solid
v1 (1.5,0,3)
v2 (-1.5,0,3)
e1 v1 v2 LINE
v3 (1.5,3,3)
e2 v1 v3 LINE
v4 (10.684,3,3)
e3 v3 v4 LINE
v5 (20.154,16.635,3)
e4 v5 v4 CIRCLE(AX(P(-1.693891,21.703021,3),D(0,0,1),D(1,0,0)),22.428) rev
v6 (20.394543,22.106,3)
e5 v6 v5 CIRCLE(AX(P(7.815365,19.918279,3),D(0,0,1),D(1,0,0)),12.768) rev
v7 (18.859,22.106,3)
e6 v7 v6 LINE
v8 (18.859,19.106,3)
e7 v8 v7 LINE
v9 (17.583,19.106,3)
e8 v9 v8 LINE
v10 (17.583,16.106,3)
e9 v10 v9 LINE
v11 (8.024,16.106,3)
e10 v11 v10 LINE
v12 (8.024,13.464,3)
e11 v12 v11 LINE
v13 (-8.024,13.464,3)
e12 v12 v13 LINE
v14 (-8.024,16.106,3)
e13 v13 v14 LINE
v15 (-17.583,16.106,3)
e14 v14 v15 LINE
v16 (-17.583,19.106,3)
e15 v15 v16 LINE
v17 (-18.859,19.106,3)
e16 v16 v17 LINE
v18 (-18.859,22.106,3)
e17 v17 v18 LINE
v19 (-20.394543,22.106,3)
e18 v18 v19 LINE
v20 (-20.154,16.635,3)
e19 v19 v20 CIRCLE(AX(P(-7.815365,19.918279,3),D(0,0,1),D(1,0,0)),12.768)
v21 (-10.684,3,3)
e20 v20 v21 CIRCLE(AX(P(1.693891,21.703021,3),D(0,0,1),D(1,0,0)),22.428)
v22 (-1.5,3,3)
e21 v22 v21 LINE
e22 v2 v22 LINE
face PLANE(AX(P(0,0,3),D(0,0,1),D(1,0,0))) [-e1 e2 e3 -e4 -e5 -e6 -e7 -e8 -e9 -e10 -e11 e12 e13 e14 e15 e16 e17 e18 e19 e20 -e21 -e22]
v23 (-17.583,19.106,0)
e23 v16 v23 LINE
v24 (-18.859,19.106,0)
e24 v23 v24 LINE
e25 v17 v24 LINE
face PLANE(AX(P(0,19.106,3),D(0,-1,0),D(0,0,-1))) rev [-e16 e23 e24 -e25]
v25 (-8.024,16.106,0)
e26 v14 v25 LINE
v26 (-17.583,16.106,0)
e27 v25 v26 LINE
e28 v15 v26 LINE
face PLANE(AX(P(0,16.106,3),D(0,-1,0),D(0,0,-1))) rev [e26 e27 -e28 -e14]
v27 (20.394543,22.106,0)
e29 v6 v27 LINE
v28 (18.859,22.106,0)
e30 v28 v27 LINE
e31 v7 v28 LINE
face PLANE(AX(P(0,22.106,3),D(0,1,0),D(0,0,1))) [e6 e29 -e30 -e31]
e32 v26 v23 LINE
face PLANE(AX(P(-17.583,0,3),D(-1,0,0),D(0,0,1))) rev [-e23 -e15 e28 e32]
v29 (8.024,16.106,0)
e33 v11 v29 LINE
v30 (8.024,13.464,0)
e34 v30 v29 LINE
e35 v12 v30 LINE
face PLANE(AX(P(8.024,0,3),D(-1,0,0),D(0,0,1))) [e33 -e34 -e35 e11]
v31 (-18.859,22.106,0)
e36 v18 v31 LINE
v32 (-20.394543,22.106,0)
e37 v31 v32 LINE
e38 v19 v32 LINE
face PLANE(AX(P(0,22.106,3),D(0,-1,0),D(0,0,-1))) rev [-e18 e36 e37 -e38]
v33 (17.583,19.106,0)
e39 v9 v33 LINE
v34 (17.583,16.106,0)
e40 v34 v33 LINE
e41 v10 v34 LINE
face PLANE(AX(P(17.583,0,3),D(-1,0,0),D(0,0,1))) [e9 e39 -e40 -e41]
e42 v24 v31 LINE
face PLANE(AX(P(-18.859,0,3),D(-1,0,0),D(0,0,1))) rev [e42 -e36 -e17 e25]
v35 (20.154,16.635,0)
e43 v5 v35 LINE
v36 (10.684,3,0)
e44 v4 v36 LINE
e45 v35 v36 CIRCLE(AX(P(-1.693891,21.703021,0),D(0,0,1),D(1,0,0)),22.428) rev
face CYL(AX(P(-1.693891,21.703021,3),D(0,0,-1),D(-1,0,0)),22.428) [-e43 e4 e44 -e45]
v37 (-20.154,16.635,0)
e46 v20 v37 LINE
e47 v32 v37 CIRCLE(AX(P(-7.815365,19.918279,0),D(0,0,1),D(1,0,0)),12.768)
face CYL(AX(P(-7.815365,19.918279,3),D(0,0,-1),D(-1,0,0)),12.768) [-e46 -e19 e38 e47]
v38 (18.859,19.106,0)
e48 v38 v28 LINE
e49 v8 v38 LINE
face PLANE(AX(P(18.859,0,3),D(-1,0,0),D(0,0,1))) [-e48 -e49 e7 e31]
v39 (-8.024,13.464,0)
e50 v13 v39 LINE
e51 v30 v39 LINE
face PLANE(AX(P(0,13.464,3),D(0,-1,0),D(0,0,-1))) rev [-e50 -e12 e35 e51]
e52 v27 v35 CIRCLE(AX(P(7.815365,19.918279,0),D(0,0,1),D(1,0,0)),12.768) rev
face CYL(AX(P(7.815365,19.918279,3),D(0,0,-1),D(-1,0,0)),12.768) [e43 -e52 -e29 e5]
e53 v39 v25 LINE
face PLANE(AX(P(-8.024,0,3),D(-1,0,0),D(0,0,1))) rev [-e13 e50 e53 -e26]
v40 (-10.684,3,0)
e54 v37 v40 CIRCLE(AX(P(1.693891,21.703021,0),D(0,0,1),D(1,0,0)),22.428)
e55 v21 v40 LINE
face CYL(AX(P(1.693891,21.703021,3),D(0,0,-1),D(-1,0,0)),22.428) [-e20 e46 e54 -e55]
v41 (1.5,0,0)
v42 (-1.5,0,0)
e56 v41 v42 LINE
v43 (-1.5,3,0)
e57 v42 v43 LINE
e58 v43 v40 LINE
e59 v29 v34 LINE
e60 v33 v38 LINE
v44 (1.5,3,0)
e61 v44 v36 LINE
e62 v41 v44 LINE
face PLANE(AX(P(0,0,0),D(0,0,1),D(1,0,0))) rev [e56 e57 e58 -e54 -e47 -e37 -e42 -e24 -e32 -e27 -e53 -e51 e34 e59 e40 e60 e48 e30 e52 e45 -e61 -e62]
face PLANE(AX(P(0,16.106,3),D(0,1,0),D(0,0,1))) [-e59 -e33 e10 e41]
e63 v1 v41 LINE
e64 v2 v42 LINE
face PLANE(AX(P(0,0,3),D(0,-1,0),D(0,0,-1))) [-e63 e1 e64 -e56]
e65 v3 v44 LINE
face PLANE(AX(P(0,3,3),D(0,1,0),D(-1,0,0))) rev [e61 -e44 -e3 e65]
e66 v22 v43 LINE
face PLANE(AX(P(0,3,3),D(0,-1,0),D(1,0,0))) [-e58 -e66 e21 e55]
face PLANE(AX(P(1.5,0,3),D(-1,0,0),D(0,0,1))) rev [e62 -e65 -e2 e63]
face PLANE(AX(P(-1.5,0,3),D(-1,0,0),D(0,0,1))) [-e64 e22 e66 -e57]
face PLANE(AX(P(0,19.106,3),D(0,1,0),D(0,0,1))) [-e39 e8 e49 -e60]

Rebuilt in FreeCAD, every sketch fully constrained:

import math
import FreeCAD as App
import Part
import Sketcher
from FreeCAD import Vector
Q = App.Units.Quantity

doc = App.newDocument("Part")
body = doc.addObject("PartDesign::Body", "Body")

# Sketch on XY plane
sketch1 = body.newObject("Sketcher::SketchObject", "Sketch")
sketch1.AttachmentSupport = (doc.getObject("XY_Plane"), [""])
sketch1.MapMode = "FlatFace"
sketch1.addGeometry(Part.LineSegment(Vector(8, 16.1, 0), Vector(8, 13.5, 0)), False)
sketch1.addGeometry(Part.LineSegment(Vector(8, 13.5, 0), Vector(-8, 13.5, 0)), False)
sketch1.addGeometry(Part.LineSegment(Vector(-8, 13.5, 0), Vector(-8, 16.1, 0)), False)
sketch1.addGeometry(Part.LineSegment(Vector(-8, 16.1, 0), Vector(-17.6, 16.1, 0)), False)
sketch1.addGeometry(Part.LineSegment(Vector(-17.6, 16.1, 0), Vector(-17.6, 19.1, 0)), False)
sketch1.addGeometry(Part.LineSegment(Vector(-17.6, 19.1, 0), Vector(-18.9, 19.1, 0)), False)
sketch1.addGeometry(Part.LineSegment(Vector(-18.9, 19.1, 0), Vector(-18.9, 22.1, 0)), False)
sketch1.addGeometry(Part.LineSegment(Vector(-18.9, 22.1, 0), Vector(-20.4, 22.1, 0)), False)
sketch1.addGeometry(Part.ArcOfCircle(Part.Circle(Vector(-7.8, 19.9, 0), Vector(0, 0, 1), 12.8), math.radians(170), math.radians(195)), False)
sketch1.addGeometry(Part.ArcOfCircle(Part.Circle(Vector(1.7, 21.7, 0), Vector(0, 0, 1), 22.4), math.radians(-167), math.radians(-123)), False)
sketch1.addGeometry(Part.LineSegment(Vector(-10.7, 3, 0), Vector(-1.5, 3, 0)), False)
sketch1.addGeometry(Part.LineSegment(Vector(-1.5, 3, 0), Vector(-1.5, 0, 0)), False)
sketch1.addGeometry(Part.LineSegment(Vector(-1.5, 0, 0), Vector(1.5, 0, 0)), False)
sketch1.addGeometry(Part.LineSegment(Vector(1.5, 0, 0), Vector(1.5, 3, 0)), False)
sketch1.addGeometry(Part.LineSegment(Vector(1.5, 3, 0), Vector(10.7, 3, 0)), False)
sketch1.addGeometry(Part.ArcOfCircle(Part.Circle(Vector(-1.7, 21.7, 0), Vector(0, 0, 1), 22.4), math.radians(-57), math.radians(-13)), False)
sketch1.addGeometry(Part.ArcOfCircle(Part.Circle(Vector(7.8, 19.9, 0), Vector(0, 0, 1), 12.8), math.radians(-15), math.radians(10)), False)
sketch1.addGeometry(Part.LineSegment(Vector(20.4, 22.1, 0), Vector(18.9, 22.1, 0)), False)
sketch1.addGeometry(Part.LineSegment(Vector(18.9, 22.1, 0), Vector(18.9, 19.1, 0)), False)
sketch1.addGeometry(Part.LineSegment(Vector(18.9, 19.1, 0), Vector(17.6, 19.1, 0)), False)
sketch1.addGeometry(Part.LineSegment(Vector(17.6, 19.1, 0), Vector(17.6, 16.1, 0)), False)
sketch1.addGeometry(Part.LineSegment(Vector(17.6, 16.1, 0), Vector(8, 16.1, 0)), False)
sketch1.addConstraint(Sketcher.Constraint("Coincident", 0, 2, 1, 1))
sketch1.addConstraint(Sketcher.Constraint("Coincident", 1, 2, 2, 1))
sketch1.addConstraint(Sketcher.Constraint("Coincident", 2, 2, 3, 1))
sketch1.addConstraint(Sketcher.Constraint("Coincident", 3, 2, 4, 1))
sketch1.addConstraint(Sketcher.Constraint("Coincident", 4, 2, 5, 1))
sketch1.addConstraint(Sketcher.Constraint("Coincident", 5, 2, 6, 1))
sketch1.addConstraint(Sketcher.Constraint("Coincident", 6, 2, 7, 1))
sketch1.addConstraint(Sketcher.Constraint("Coincident", 7, 2, 8, 1))
sketch1.addConstraint(Sketcher.Constraint("Coincident", 8, 2, 9, 1))
sketch1.addConstraint(Sketcher.Constraint("Coincident", 9, 2, 10, 1))
sketch1.addConstraint(Sketcher.Constraint("Coincident", 10, 2, 11, 1))
sketch1.addConstraint(Sketcher.Constraint("Coincident", 11, 2, 12, 1))
sketch1.addConstraint(Sketcher.Constraint("Coincident", 12, 2, 13, 1))
sketch1.addConstraint(Sketcher.Constraint("Coincident", 13, 2, 14, 1))
sketch1.addConstraint(Sketcher.Constraint("Coincident", 14, 2, 15, 1))
sketch1.addConstraint(Sketcher.Constraint("Coincident", 15, 2, 16, 1))
sketch1.addConstraint(Sketcher.Constraint("Coincident", 16, 2, 17, 1))
sketch1.addConstraint(Sketcher.Constraint("Coincident", 17, 2, 18, 1))
sketch1.addConstraint(Sketcher.Constraint("Coincident", 18, 2, 19, 1))
sketch1.addConstraint(Sketcher.Constraint("Coincident", 19, 2, 20, 1))
sketch1.addConstraint(Sketcher.Constraint("Coincident", 20, 2, 21, 1))
sketch1.addConstraint(Sketcher.Constraint("Coincident", 21, 2, 0, 1))
sketch1.addConstraint(Sketcher.Constraint("Vertical", 0))
sketch1.addConstraint(Sketcher.Constraint("Horizontal", 1))
sketch1.addConstraint(Sketcher.Constraint("Vertical", 2))
sketch1.addConstraint(Sketcher.Constraint("Horizontal", 3))
sketch1.addConstraint(Sketcher.Constraint("Vertical", 4))
sketch1.addConstraint(Sketcher.Constraint("Horizontal", 5))
sketch1.addConstraint(Sketcher.Constraint("Vertical", 6))
sketch1.addConstraint(Sketcher.Constraint("Horizontal", 7))
sketch1.addConstraint(Sketcher.Constraint("Horizontal", 10))
sketch1.addConstraint(Sketcher.Constraint("Vertical", 11))
sketch1.addConstraint(Sketcher.Constraint("Horizontal", 12))
sketch1.addConstraint(Sketcher.Constraint("Vertical", 13))
sketch1.addConstraint(Sketcher.Constraint("Horizontal", 14))
sketch1.addConstraint(Sketcher.Constraint("Horizontal", 17))
sketch1.addConstraint(Sketcher.Constraint("Vertical", 18))
sketch1.addConstraint(Sketcher.Constraint("Horizontal", 19))
sketch1.addConstraint(Sketcher.Constraint("Vertical", 20))
sketch1.addConstraint(Sketcher.Constraint("Horizontal", 21))
sketch1.addConstraint(Sketcher.Constraint("Equal", 9, 15))
sketch1.addConstraint(Sketcher.Constraint("Equal", 8, 16))
sketch1.addConstraint(Sketcher.Constraint("Symmetric", 11, 2, 12, 2, -1, 1))
sketch1.addConstraint(Sketcher.Constraint("Symmetric", 9, 3, 15, 3, -2))
sketch1.addConstraint(Sketcher.Constraint("Symmetric", 8, 3, 16, 3, -2))
sketch1.addConstraint(Sketcher.Constraint("Symmetric", 6, 2, 17, 2, -2))
sketch1.addConstraint(Sketcher.Constraint("Symmetric", 4, 2, 19, 2, -2))
sketch1.addConstraint(Sketcher.Constraint("Symmetric", 2, 2, 21, 2, -2))
sketch1.addConstraint(Sketcher.Constraint("Horizontal", 10, 2, 13, 2))
sketch1.addConstraint(Sketcher.Constraint("Equal", 12, 4))
sketch1.addConstraint(Sketcher.Constraint("Equal", 4, 6))
sketch1.addConstraint(Sketcher.Constraint("Equal", 6, 11))
sketch1.addConstraint(Sketcher.Constraint("DistanceX", 12, 1, 12, 2, Q("3 mm")))
sketch1.addConstraint(Sketcher.Constraint("Radius", 8, Q("12.768 mm")))
sketch1.addConstraint(Sketcher.Constraint("Radius", 9, Q("22.428 mm")))
sketch1.addConstraint(Sketcher.Constraint("DistanceX", 1, 2, 1, 1, Q("16.048 mm")))
sketch1.addConstraint(Sketcher.Constraint("DistanceX", 3, 2, 3, 1, Q("9.559 mm")))
sketch1.addConstraint(Sketcher.Constraint("DistanceX", 5, 2, 5, 1, Q("1.276 mm")))
sketch1.addConstraint(Sketcher.Constraint("DistanceX", 10, 1, 10, 2, Q("9.184 mm")))
sketch1.addConstraint(Sketcher.Constraint("DistanceY", 0, 2, 0, 1, Q("2.642 mm")))
sketch1.addConstraint(Sketcher.Constraint("DistanceX", 8, 2, 9, 2, Q("9.47 mm")))
sketch1.addConstraint(Sketcher.Constraint("DistanceY", -1, 1, 0, 2, Q("13.464 mm")))
sketch1.addConstraint(Sketcher.Constraint("DistanceY", -1, 1, 8, 2, Q("16.635 mm")))
sketch1.addConstraint(Sketcher.Constraint("DistanceX", 7, 2, 7, 1, Q("1.535543 mm")))
pad1 = body.newObject("PartDesign::Pad", "Pad")
pad1.Profile = sketch1
pad1.Length = 3

doc.recompute()
